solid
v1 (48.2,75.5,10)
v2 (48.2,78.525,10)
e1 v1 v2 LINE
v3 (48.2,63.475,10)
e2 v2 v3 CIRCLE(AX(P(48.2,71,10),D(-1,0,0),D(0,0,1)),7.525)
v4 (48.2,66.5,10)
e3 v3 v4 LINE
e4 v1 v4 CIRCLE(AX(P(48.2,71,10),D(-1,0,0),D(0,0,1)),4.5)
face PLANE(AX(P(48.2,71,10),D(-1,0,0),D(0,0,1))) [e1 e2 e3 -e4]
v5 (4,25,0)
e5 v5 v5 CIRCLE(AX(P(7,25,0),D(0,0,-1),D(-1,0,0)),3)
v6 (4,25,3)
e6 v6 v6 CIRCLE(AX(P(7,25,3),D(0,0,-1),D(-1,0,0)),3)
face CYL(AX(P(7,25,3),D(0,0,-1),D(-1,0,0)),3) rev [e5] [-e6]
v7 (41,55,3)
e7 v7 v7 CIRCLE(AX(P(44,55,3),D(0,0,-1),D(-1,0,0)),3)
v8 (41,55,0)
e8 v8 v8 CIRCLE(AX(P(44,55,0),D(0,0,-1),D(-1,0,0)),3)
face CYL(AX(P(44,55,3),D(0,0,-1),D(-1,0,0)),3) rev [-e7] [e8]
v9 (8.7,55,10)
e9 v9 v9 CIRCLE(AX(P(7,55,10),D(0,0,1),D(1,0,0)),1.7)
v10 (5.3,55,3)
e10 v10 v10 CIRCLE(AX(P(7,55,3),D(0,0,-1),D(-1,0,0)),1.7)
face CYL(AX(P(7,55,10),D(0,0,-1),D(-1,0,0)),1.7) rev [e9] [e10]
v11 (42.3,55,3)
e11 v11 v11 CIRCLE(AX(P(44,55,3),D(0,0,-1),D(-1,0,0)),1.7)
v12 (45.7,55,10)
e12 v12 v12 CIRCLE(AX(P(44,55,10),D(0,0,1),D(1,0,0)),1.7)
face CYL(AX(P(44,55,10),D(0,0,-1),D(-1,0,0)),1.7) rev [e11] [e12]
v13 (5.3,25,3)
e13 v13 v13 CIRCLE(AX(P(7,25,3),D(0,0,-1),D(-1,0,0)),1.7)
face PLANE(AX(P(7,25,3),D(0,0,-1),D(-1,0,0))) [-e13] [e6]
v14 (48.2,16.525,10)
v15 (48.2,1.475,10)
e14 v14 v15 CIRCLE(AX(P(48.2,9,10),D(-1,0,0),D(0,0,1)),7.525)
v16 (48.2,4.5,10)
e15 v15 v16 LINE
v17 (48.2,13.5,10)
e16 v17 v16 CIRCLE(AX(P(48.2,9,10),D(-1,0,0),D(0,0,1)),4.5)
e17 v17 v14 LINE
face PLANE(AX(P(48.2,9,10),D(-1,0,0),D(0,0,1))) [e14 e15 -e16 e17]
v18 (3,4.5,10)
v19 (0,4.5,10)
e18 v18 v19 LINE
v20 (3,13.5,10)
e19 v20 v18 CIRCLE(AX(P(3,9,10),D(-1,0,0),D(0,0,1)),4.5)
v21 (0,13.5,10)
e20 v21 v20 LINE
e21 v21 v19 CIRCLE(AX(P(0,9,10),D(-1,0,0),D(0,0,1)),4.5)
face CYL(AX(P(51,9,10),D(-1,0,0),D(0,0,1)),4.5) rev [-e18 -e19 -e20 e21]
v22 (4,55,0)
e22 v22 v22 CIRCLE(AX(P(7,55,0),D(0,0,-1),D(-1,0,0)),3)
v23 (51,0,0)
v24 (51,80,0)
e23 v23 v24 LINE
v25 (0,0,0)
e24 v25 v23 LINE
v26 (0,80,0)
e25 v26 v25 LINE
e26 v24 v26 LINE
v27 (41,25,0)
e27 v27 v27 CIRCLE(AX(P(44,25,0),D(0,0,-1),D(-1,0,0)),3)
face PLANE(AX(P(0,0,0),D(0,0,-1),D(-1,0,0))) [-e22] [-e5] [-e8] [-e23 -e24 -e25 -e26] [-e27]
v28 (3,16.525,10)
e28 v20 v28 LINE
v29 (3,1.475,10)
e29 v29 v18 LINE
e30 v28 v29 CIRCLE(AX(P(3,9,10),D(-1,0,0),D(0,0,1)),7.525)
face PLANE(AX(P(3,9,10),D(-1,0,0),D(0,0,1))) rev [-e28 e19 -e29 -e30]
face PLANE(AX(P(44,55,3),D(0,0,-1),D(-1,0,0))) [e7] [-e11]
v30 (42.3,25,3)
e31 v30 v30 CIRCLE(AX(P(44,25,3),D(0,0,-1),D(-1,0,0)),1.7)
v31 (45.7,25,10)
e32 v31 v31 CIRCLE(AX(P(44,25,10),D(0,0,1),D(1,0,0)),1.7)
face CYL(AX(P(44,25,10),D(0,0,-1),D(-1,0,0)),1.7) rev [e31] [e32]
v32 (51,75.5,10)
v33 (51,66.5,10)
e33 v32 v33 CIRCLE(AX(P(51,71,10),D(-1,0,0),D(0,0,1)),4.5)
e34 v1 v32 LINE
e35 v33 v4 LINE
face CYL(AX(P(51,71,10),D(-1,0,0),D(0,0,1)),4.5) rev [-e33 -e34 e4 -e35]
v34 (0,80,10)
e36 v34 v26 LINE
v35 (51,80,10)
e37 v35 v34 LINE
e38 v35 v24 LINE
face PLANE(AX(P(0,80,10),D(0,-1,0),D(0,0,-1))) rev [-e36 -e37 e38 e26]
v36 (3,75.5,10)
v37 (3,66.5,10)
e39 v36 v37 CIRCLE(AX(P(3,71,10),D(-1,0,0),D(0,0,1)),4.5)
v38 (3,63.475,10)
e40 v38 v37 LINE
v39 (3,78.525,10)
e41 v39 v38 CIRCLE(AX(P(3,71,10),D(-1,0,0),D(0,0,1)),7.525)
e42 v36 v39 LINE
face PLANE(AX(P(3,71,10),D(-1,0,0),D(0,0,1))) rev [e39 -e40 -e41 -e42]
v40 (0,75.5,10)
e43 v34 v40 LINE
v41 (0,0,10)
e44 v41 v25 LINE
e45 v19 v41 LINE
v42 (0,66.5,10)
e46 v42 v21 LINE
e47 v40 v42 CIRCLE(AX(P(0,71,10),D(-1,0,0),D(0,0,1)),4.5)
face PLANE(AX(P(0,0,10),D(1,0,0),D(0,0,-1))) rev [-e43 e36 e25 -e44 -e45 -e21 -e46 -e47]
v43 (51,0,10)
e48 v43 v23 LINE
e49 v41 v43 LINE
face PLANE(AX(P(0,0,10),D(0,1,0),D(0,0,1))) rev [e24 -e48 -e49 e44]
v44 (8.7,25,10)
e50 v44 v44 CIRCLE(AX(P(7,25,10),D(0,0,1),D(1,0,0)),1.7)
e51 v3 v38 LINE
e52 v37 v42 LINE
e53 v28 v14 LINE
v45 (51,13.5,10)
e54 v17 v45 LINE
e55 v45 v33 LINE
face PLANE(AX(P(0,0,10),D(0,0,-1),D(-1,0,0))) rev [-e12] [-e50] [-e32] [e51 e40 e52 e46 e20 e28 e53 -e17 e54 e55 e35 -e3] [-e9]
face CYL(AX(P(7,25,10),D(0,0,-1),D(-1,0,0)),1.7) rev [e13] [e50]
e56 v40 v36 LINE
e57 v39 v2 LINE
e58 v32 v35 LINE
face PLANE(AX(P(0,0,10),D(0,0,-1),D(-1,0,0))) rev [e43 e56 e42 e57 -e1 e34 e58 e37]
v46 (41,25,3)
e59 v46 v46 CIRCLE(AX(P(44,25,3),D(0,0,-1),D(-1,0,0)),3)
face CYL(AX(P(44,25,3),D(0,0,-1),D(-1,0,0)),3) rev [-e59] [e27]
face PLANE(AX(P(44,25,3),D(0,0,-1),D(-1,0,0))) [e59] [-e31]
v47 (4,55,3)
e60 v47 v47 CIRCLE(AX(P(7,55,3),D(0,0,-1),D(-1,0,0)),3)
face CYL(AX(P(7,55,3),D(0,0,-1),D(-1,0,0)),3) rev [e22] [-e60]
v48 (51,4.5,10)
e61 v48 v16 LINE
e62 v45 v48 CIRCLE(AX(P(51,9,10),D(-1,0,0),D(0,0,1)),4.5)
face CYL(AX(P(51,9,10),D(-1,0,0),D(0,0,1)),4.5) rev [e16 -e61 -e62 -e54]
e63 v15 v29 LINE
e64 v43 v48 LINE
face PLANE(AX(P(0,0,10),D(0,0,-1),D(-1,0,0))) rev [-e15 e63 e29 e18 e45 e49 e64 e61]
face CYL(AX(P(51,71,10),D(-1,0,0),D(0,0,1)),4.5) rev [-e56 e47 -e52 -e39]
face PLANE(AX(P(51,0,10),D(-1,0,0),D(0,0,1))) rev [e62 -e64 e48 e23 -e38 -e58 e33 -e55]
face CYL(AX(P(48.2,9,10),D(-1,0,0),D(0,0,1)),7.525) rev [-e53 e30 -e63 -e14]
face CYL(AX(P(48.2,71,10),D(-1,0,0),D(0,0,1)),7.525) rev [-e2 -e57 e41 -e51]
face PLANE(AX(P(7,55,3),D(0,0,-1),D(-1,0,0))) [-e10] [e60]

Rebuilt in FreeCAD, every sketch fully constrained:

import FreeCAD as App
import Part
import Sketcher
from FreeCAD import Vector
Q = App.Units.Quantity

doc = App.newDocument("Part")
body = doc.addObject("PartDesign::Body", "Body")

# Sketch on XY plane
sketch1 = body.newObject("Sketcher::SketchObject", "Sketch")
sketch1.AttachmentSupport = (doc.getObject("XY_Plane"), [""])
sketch1.MapMode = "FlatFace"
sketch1.addGeometry(Part.LineSegment(Vector(0, 80, 0), Vector(0, 0, 0)), False)
sketch1.addGeometry(Part.LineSegment(Vector(0, 0, 0), Vector(51, 0, 0)), False)
sketch1.addGeometry(Part.LineSegment(Vector(51, 0, 0), Vector(51, 80, 0)), False)
sketch1.addGeometry(Part.LineSegment(Vector(51, 80, 0), Vector(0, 80, 0)), False)
sketch1.addGeometry(Part.Circle(Vector(7, 25, 0), Vector(0, 0, 1), 1.7), False)
sketch1.addGeometry(Part.Circle(Vector(44, 25, 0), Vector(0, 0, 1), 1.7), False)
sketch1.addGeometry(Part.Circle(Vector(7, 55, 0), Vector(0, 0, 1), 1.7), False)
sketch1.addGeometry(Part.Circle(Vector(44, 55, 0), Vector(0, 0, 1), 1.7), False)
sketch1.addConstraint(Sketcher.Constraint("Coincident", 0, 2, 1, 1))
sketch1.addConstraint(Sketcher.Constraint("Coincident", 1, 2, 2, 1))
sketch1.addConstraint(Sketcher.Constraint("Coincident", 2, 2, 3, 1))
sketch1.addConstraint(Sketcher.Constraint("Coincident", 3, 2, 0, 1))
sketch1.addConstraint(Sketcher.Constraint("Vertical", 0))
sketch1.addConstraint(Sketcher.Constraint("Horizontal", 1))
sketch1.addConstraint(Sketcher.Constraint("Vertical", 2))
sketch1.addConstraint(Sketcher.Constraint("Horizontal", 3))
sketch1.addConstraint(Sketcher.Constraint("Coincident", 0, 2, -1, 1))
sketch1.addConstraint(Sketcher.Constraint("Equal", 4, 5))
sketch1.addConstraint(Sketcher.Constraint("Equal", 5, 6))
sketch1.addConstraint(Sketcher.Constraint("Equal", 6, 7))
sketch1.addConstraint(Sketcher.Constraint("Horizontal", 4, 3, 5, 3))
sketch1.addConstraint(Sketcher.Constraint("Horizontal", 6, 3, 7, 3))
sketch1.addConstraint(Sketcher.Constraint("Vertical", 4, 3, 6, 3))
sketch1.addConstraint(Sketcher.Constraint("Vertical", 5, 3, 7, 3))
sketch1.addConstraint(Sketcher.Constraint("Diameter", 4, Q("3.4 mm")))
sketch1.addConstraint(Sketcher.Constraint("DistanceX", 1, 1, 1, 2, Q("51 mm")))
sketch1.addConstraint(Sketcher.Constraint("DistanceY", 0, 2, 0, 1, Q("80 mm")))
sketch1.addConstraint(Sketcher.Constraint("DistanceX", -1, 1, 4, 3, Q("7 mm")))
sketch1.addConstraint(Sketcher.Constraint("DistanceY", -1, 1, 4, 3, Q("25 mm")))
sketch1.addConstraint(Sketcher.Constraint("DistanceX", -1, 1, 5, 3, Q("44 mm")))
sketch1.addConstraint(Sketcher.Constraint("DistanceY", -1, 1, 6, 3, Q("55 mm")))
pad1 = body.newObject("PartDesign::Pad", "Pad")
pad1.Profile = sketch1
pad1.Length = 10

# Sketch on YZ plane
sketch2 = body.newObject("Sketcher::SketchObject", "Sketch001")
sketch2.AttachmentSupport = (doc.getObject("YZ_Plane"), [""])
sketch2.MapMode = "FlatFace"
sketch2.AttachmentOffset = App.Placement(Vector(0, 0, 3), App.Rotation())
sketch2.addGeometry(Part.Circle(Vector(71, 10, 0), Vector(0, 0, 1), 8), False)
sketch2.addGeometry(Part.Circle(Vector(9, 10, 0), Vector(0, 0, 1), 8), False)
sketch2.addConstraint(Sketcher.Constraint("Equal", 0, 1))
sketch2.addConstraint(Sketcher.Constraint("Horizontal", 0, 3, 1, 3))
sketch2.addConstraint(Sketcher.Constraint("Diameter", 0, Q("15.05 mm")))
sketch2.addConstraint(Sketcher.Constraint("DistanceX", -1, 1, 0, 3, Q("71 mm")))
sketch2.addConstraint(Sketcher.Constraint("DistanceY", -1, 1, 0, 3, Q("10 mm")))
sketch2.addConstraint(Sketcher.Constraint("DistanceX", -1, 1, 1, 3, Q("9 mm")))
pocket1 = body.newObject("PartDesign::Pocket", "Pocket")
pocket1.Profile = sketch2
pocket1.Length = 45.2
pocket1.Reversed = True

# Sketch on YZ plane
sketch3 = body.newObject("Sketcher::SketchObject", "Sketch002")
sketch3.AttachmentSupport = (doc.getObject("YZ_Plane"), [""])
sketch3.MapMode = "FlatFace"
sketch3.addGeometry(Part.Circle(Vector(71, 10, 0), Vector(0, 0, 1), 4.5), False)
sketch3.addGeometry(Part.Circle(Vector(9, 10, 0), Vector(0, 0, 1), 4.5), False)
sketch3.addConstraint(Sketcher.Constraint("Equal", 0, 1))
sketch3.addConstraint(Sketcher.Constraint("Horizontal", 0, 3, 1, 3))
sketch3.addConstraint(Sketcher.Constraint("Diameter", 0, Q("9 mm")))
sketch3.addConstraint(Sketcher.Constraint("DistanceX", -1, 1, 0, 3, Q("71 mm")))
sketch3.addConstraint(Sketcher.Constraint("DistanceY", -1, 1, 0, 3, Q("10 mm")))
sketch3.addConstraint(Sketcher.Constraint("DistanceX", -1, 1, 1, 3, Q("9 mm")))
pocket2 = body.newObject("PartDesign::Pocket", "Pocket001")
pocket2.Profile = sketch3
pocket2.Type = "ThroughAll"
pocket2.Reversed = True

# Sketch on XY plane
sketch4 = body.newObject("Sketcher::SketchObject", "Sketch003")
sketch4.AttachmentSupport = (doc.getObject("XY_Plane"), [""])
sketch4.MapMode = "FlatFace"
sketch4.addGeometry(Part.Circle(Vector(44, 55, 0), Vector(0, 0, 1), 3), False)
sketch4.addGeometry(Part.Circle(Vector(7, 55, 0), Vector(0, 0, 1), 3), False)
sketch4.addGeometry(Part.Circle(Vector(7, 25, 0), Vector(0, 0, 1), 3), False)
sketch4.addGeometry(Part.Circle(Vector(44, 25, 0), Vector(0, 0, 1), 3), False)
sketch4.addConstraint(Sketcher.Constraint("Equal", 0, 1))
sketch4.addConstraint(Sketcher.Constraint("Equal", 1, 2))
sketch4.addConstraint(Sketcher.Constraint("Equal", 2, 3))
sketch4.addConstraint(Sketcher.Constraint("Horizontal", 0, 3, 1, 3))
sketch4.addConstraint(Sketcher.Constraint("Horizontal", 2, 3, 3, 3))
sketch4.addConstraint(Sketcher.Constraint("Vertical", 1, 3, 2, 3))
sketch4.addConstraint(Sketcher.Constraint("Vertical", 0, 3, 3, 3))
sketch4.addConstraint(Sketcher.Constraint("Diameter", 0, Q("6 mm")))
sketch4.addConstraint(Sketcher.Constraint("DistanceX", -1, 1, 0, 3, Q("44 mm")))
sketch4.addConstraint(Sketcher.Constraint("DistanceY", -1, 1, 0, 3, Q("55 mm")))
sketch4.addConstraint(Sketcher.Constraint("DistanceX", -1, 1, 1, 3, Q("7 mm")))
sketch4.addConstraint(Sketcher.Constraint("DistanceY", -1, 1, 2, 3, Q("25 mm")))
pocket3 = body.newObject("PartDesign::Pocket", "Pocket002")
pocket3.Profile = sketch4
pocket3.Length = 3
pocket3.Reversed = True

doc.recompute()
